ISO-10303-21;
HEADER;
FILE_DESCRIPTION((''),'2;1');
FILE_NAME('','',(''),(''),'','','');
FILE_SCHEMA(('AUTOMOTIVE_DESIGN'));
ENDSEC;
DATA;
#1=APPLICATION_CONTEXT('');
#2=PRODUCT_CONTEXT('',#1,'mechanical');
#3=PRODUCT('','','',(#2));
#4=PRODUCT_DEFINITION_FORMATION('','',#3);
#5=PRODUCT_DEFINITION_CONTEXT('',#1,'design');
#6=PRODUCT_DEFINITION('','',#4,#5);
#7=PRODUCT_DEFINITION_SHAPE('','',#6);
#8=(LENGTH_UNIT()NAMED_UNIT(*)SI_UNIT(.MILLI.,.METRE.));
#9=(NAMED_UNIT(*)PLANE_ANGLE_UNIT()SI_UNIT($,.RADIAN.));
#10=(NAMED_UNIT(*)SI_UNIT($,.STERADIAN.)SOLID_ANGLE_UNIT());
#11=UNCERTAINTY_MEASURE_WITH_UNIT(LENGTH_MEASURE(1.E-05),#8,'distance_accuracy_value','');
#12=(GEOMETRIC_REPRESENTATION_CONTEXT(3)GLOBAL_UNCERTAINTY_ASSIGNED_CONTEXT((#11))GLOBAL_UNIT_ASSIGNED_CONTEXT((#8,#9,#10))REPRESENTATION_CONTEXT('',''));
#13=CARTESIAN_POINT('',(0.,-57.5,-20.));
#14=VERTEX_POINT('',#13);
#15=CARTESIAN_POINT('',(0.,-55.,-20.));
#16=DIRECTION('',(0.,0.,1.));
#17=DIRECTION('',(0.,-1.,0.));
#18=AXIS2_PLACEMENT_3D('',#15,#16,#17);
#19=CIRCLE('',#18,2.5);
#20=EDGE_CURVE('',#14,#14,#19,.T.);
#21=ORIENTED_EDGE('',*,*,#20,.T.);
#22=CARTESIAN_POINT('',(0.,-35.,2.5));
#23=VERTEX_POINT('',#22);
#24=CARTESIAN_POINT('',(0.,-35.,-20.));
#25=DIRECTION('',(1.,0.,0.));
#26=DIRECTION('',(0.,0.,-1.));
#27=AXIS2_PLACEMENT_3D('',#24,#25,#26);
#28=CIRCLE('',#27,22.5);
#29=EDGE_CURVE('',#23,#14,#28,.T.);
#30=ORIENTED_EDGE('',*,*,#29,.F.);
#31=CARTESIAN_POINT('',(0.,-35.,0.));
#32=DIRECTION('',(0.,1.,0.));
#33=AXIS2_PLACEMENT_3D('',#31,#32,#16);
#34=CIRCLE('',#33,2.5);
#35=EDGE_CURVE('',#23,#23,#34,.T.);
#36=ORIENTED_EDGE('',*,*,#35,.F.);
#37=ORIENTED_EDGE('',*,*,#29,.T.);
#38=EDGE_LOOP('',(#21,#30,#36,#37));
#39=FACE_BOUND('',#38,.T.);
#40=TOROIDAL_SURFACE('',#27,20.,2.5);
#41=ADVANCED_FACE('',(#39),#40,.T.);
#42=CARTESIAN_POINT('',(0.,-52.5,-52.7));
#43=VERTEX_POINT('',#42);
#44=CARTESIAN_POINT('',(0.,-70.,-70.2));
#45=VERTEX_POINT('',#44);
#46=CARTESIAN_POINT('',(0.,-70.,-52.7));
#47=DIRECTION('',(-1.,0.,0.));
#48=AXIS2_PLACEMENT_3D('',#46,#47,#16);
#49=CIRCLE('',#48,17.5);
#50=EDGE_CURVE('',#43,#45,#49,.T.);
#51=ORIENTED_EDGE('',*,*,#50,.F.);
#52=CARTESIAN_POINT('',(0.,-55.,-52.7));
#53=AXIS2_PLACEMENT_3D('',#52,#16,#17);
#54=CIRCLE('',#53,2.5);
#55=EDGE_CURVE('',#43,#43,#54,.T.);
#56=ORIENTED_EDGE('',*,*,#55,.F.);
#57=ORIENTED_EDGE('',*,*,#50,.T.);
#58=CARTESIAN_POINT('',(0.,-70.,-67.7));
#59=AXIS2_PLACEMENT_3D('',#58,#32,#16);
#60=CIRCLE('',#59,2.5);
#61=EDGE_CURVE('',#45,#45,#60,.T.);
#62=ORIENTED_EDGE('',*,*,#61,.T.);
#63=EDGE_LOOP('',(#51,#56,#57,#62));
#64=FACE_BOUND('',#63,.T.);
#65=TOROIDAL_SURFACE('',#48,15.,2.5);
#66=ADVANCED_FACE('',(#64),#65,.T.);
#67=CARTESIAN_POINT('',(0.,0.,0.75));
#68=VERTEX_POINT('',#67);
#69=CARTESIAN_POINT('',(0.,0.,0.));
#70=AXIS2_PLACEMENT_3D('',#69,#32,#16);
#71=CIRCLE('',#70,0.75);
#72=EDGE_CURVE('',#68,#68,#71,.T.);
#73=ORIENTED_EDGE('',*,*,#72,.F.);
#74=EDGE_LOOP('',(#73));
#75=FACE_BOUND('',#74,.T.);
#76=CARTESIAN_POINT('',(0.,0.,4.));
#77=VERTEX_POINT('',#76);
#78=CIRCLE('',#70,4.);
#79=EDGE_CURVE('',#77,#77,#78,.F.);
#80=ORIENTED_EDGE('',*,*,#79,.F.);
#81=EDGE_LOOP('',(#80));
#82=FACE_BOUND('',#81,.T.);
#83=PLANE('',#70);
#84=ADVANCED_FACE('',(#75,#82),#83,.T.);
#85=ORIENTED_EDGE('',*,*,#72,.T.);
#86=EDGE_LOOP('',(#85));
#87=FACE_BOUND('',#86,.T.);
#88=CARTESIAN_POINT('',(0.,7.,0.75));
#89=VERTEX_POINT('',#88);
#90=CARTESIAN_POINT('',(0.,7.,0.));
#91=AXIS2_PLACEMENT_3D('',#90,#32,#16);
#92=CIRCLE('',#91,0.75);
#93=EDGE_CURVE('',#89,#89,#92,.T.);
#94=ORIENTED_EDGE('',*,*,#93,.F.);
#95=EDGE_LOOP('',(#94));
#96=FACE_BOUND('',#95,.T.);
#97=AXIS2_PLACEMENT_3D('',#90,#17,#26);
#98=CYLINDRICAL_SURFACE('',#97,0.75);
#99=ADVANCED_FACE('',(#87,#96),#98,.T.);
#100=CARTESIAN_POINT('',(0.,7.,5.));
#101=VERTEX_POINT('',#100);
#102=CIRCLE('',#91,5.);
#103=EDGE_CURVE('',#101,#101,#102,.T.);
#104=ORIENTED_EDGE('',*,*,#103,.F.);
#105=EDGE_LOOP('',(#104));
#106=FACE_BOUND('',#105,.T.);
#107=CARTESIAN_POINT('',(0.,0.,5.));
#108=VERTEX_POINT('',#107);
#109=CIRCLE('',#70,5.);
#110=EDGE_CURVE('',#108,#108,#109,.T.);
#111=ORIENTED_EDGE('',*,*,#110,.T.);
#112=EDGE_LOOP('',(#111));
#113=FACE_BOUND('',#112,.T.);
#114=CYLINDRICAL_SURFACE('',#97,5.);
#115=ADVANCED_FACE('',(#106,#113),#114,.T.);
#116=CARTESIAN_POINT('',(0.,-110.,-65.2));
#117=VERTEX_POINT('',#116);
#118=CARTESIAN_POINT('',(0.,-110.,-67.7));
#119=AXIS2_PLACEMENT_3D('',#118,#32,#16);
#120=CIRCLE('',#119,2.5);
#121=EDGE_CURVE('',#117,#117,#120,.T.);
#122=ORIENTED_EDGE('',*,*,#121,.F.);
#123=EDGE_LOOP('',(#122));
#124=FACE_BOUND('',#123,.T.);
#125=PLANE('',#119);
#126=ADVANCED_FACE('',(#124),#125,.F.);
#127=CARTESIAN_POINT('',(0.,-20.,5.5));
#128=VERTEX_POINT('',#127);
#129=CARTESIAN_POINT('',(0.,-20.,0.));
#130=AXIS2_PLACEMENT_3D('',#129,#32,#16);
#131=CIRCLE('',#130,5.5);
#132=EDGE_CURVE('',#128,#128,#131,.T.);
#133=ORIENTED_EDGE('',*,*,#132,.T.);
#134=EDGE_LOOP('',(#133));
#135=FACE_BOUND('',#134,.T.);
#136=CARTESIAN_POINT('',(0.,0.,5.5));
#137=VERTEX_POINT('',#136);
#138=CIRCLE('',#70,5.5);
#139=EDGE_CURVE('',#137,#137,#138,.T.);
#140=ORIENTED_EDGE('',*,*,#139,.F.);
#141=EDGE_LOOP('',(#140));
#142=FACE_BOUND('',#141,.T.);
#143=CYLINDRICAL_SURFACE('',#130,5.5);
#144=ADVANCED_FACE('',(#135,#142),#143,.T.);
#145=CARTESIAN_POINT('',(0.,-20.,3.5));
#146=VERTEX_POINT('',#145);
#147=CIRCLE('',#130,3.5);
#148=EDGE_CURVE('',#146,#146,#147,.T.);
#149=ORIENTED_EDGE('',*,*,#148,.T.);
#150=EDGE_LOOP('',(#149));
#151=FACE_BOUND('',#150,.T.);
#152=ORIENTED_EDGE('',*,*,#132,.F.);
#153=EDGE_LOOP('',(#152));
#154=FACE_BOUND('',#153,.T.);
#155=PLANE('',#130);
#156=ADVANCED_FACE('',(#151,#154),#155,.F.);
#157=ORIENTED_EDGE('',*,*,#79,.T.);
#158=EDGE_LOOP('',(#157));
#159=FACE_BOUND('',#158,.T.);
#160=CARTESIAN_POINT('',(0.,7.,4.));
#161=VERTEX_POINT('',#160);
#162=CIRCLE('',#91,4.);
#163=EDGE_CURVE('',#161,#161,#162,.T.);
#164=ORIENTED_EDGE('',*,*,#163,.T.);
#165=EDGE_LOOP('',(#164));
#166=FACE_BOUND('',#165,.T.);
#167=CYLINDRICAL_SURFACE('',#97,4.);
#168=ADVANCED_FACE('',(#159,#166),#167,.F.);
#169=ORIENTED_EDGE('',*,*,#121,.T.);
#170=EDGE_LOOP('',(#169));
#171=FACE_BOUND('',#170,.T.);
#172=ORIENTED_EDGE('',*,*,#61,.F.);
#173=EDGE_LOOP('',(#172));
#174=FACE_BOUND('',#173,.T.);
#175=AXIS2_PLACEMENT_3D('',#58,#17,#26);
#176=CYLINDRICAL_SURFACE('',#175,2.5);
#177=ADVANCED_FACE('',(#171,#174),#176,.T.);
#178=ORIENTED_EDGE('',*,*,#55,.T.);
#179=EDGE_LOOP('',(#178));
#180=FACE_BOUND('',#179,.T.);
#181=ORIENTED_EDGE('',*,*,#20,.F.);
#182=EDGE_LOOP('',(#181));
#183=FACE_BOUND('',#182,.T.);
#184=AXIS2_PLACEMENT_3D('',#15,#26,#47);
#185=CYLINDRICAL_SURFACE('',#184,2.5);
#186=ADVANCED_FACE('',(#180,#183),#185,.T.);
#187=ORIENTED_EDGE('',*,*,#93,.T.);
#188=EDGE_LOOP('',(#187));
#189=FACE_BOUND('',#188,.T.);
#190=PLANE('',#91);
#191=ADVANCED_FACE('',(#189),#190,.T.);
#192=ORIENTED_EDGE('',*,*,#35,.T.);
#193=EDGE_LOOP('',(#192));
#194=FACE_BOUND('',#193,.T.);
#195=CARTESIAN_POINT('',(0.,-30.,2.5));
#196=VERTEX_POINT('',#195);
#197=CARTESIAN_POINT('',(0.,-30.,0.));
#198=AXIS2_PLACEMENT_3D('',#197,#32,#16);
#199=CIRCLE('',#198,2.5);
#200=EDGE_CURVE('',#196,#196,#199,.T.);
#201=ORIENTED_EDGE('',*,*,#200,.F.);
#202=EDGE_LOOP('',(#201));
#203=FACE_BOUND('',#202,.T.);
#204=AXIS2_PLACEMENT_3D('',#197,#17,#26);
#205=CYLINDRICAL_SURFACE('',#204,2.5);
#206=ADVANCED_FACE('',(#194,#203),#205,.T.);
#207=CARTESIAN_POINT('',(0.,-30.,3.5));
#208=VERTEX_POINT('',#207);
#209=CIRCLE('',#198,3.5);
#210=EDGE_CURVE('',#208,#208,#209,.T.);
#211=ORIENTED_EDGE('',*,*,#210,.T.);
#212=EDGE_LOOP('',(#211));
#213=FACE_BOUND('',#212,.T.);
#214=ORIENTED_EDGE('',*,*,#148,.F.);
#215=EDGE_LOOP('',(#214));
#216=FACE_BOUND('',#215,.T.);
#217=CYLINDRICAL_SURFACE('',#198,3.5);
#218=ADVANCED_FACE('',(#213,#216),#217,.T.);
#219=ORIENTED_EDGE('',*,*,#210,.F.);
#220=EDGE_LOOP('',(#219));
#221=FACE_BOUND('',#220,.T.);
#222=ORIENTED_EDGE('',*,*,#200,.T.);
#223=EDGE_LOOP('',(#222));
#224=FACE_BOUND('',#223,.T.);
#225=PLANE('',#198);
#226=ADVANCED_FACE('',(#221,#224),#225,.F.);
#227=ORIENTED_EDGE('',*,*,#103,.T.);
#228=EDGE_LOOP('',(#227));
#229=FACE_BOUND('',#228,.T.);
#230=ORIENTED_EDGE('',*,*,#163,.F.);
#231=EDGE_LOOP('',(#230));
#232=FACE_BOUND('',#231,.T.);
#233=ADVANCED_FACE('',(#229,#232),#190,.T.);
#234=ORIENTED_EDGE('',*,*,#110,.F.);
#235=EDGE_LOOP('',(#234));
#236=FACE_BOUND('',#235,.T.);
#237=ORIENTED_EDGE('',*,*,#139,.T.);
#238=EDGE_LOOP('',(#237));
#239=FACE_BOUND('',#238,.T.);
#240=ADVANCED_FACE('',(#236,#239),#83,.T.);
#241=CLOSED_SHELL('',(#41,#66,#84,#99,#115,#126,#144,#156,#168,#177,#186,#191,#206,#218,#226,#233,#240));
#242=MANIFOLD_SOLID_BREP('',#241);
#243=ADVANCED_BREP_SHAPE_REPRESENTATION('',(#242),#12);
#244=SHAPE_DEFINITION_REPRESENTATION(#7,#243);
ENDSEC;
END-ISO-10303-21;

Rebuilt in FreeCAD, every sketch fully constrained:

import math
import FreeCAD as App
import Part
import Sketcher

doc = App.newDocument("Part")
params = doc.addObject("Spreadsheet::Sheet", "Params")
for row, (alias, value) in enumerate([
    ("sketch1_diameter", "11 mm"),
    ("pad1_length", "20 mm"),
    ("sketch2_diameter", "10 mm"),
    ("sketch2_diameter2", "8 mm"),
    ("pad2_length", "7 mm"),
    ("sketch3_diameter", "1.5 mm"),
    ("pad3_length", "7 mm"),
    ("sketch4_diameter", "7 mm"),
    ("pad4_length", "10 mm"),
    ("sketch5_diameter", "5 mm"),
    ("sketch6_radius", "20 mm"),
    ("sketch6_radius2", "15 mm"),
    ("sketch6_width", "5 mm"),
    ("sketch6_width2", "40 mm"),
    ("sketch6_height", "32.7 mm"),
], start=1):
    params.set(f"A{row}", alias)
    params.set(f"B{row}", "=" + value)
    params.setAlias(f"B{row}", alias)

body = doc.addObject("PartDesign::Body", "Body")

sketch1 = body.newObject("Sketcher::SketchObject", "Sketch")
sketch1.AttachmentSupport = (doc.getObject("XZ_Plane"), [""])
sketch1.MapMode = "FlatFace"
sketch1.addGeometry(Part.Circle(App.Vector(0, 0, 0), App.Vector(0, 0, 1), 5.5), False)
sketch1.addConstraint(Sketcher.Constraint("Coincident", 0, 3, -1, 1))
sketch1.addConstraint(Sketcher.Constraint("Diameter", 0, 11.0))
sketch1.setExpression("Constraints[1]", "Params.sketch1_diameter")
pad1 = body.newObject("PartDesign::Pad", "Pad")
pad1.Profile = sketch1
pad1.setExpression("Length", "Params.pad1_length")

sketch2 = body.newObject("Sketcher::SketchObject", "Sketch001")
sketch2.AttachmentSupport = (doc.getObject("XZ_Plane"), [""])
sketch2.MapMode = "FlatFace"
sketch2.addGeometry(Part.Circle(App.Vector(0, 0, 0), App.Vector(0, 0, 1), 5), False)
sketch2.addGeometry(Part.Circle(App.Vector(0, 0, 0), App.Vector(0, 0, 1), 4), False)
sketch2.addConstraint(Sketcher.Constraint("Coincident", 0, 3, -1, 1))
sketch2.addConstraint(Sketcher.Constraint("Coincident", 1, 3, -1, 1))
sketch2.addConstraint(Sketcher.Constraint("Diameter", 0, 10.0))
sketch2.addConstraint(Sketcher.Constraint("Diameter", 1, 8.0))
sketch2.setExpression("Constraints[2]", "Params.sketch2_diameter")
sketch2.setExpression("Constraints[3]", "Params.sketch2_diameter2")
pad2 = body.newObject("PartDesign::Pad", "Pad001")
pad2.Profile = sketch2
pad2.setExpression("Length", "Params.pad2_length")
pad2.Reversed = True

sketch3 = body.newObject("Sketcher::SketchObject", "Sketch002")
sketch3.AttachmentSupport = (doc.getObject("XZ_Plane"), [""])
sketch3.MapMode = "FlatFace"
sketch3.addGeometry(Part.Circle(App.Vector(0, 0, 0), App.Vector(0, 0, 1), 0.75), False)
sketch3.addConstraint(Sketcher.Constraint("Coincident", 0, 3, -1, 1))
sketch3.addConstraint(Sketcher.Constraint("Diameter", 0, 1.5))
sketch3.setExpression("Constraints[1]", "Params.sketch3_diameter")
pad3 = body.newObject("PartDesign::Pad", "Pad002")
pad3.Profile = sketch3
pad3.setExpression("Length", "Params.pad3_length")
pad3.Reversed = True

sketch4 = body.newObject("Sketcher::SketchObject", "Sketch003")
sketch4.AttachmentSupport = (doc.getObject("XZ_Plane"), [""])
sketch4.MapMode = "FlatFace"
sketch4.AttachmentOffset = App.Placement(App.Vector(0, 0, 20), App.Rotation())
sketch4.addGeometry(Part.Circle(App.Vector(0, 0, 0), App.Vector(0, 0, 1), 3.5), False)
sketch4.addConstraint(Sketcher.Constraint("Coincident", 0, 3, -1, 1))
sketch4.addConstraint(Sketcher.Constraint("Diameter", 0, 7.0))
sketch4.setExpression("Constraints[1]", "Params.sketch4_diameter")
pad4 = body.newObject("PartDesign::Pad", "Pad003")
pad4.Profile = sketch4
pad4.setExpression("Length", "Params.pad4_length")

sketch5 = body.newObject("Sketcher::SketchObject", "Sketch004")
sketch5.AttachmentSupport = (doc.getObject("XZ_Plane"), [""])
sketch5.MapMode = "FlatFace"
sketch5.AttachmentOffset = App.Placement(App.Vector(0, 0, 30), App.Rotation())
sketch5.addGeometry(Part.Circle(App.Vector(0, 0, 0), App.Vector(0, 0, 1), 2.5), False)
sketch5.addConstraint(Sketcher.Constraint("Coincident", 0, 3, -1, 1))
sketch5.addConstraint(Sketcher.Constraint("Diameter", 0, 5.0))
sketch5.setExpression("Constraints[1]", "Params.sketch5_diameter")

sketch6 = body.newObject("Sketcher::SketchObject", "Sketch005")
sketch6.AttachmentSupport = (doc.getObject("YZ_Plane"), [""])
sketch6.MapMode = "FlatFace"
sketch6.addGeometry(Part.LineSegment(App.Vector(-30, 0, 0), App.Vector(-35, 0, 0)), False)
sketch6.addGeometry(Part.ArcOfCircle(Part.Circle(App.Vector(-35, -20, 0), App.Vector(0, 0, 1), 20), math.radians(90), math.radians(180)), False)
sketch6.addGeometry(Part.LineSegment(App.Vector(-55, -20, 0), App.Vector(-55, -52.7, 0)), False)
sketch6.addGeometry(Part.ArcOfCircle(Part.Circle(App.Vector(-70, -52.7, 0), App.Vector(0, 0, 1), 15), math.radians(-90), math.radians(0)), False)
sketch6.addGeometry(Part.LineSegment(App.Vector(-70, -67.7, 0), App.Vector(-110, -67.7, 0)), False)
sketch6.addConstraint(Sketcher.Constraint("Tangent", 0, 2, 1, 1))
sketch6.addConstraint(Sketcher.Constraint("Tangent", 1, 2, 2, 1))
sketch6.addConstraint(Sketcher.Constraint("Tangent", 2, 2, 3, 2))
sketch6.addConstraint(Sketcher.Constraint("Tangent", 3, 1, 4, 1))
sketch6.addConstraint(Sketcher.Constraint("Horizontal", 0))
sketch6.addConstraint(Sketcher.Constraint("Vertical", 2))
sketch6.addConstraint(Sketcher.Constraint("Horizontal", 4))
sketch6.addConstraint(Sketcher.Constraint("PointOnObject", 0, 1, -1))
sketch6.addConstraint(Sketcher.Constraint("Radius", 1, 20.0))
sketch6.addConstraint(Sketcher.Constraint("Radius", 3, 15.0))
sketch6.addConstraint(Sketcher.Constraint("DistanceX", 0, 2, 0, 1, 5.0))
sketch6.addConstraint(Sketcher.Constraint("DistanceX", 4, 2, 4, 1, 40.0))
sketch6.addConstraint(Sketcher.Constraint("DistanceY", 2, 2, 2, 1, 32.7))
sketch6.addConstraint(Sketcher.Constraint("DistanceX", 1, 3, -1, 1, 35.0))
sketch6.setExpression("Constraints[8]", "Params.sketch6_radius")
sketch6.setExpression("Constraints[9]", "Params.sketch6_radius2")
sketch6.setExpression("Constraints[10]", "Params.sketch6_width")
sketch6.setExpression("Constraints[11]", "Params.sketch6_width2")
sketch6.setExpression("Constraints[12]", "Params.sketch6_height")
doc.recompute()

additivepipe = body.newObject("PartDesign::AdditivePipe", "AdditivePipe")
additivepipe.Profile = sketch5
additivepipe.Spine = (sketch6, ["Edge1", "Edge2", "Edge3", "Edge4", "Edge5"])

doc.recompute()
